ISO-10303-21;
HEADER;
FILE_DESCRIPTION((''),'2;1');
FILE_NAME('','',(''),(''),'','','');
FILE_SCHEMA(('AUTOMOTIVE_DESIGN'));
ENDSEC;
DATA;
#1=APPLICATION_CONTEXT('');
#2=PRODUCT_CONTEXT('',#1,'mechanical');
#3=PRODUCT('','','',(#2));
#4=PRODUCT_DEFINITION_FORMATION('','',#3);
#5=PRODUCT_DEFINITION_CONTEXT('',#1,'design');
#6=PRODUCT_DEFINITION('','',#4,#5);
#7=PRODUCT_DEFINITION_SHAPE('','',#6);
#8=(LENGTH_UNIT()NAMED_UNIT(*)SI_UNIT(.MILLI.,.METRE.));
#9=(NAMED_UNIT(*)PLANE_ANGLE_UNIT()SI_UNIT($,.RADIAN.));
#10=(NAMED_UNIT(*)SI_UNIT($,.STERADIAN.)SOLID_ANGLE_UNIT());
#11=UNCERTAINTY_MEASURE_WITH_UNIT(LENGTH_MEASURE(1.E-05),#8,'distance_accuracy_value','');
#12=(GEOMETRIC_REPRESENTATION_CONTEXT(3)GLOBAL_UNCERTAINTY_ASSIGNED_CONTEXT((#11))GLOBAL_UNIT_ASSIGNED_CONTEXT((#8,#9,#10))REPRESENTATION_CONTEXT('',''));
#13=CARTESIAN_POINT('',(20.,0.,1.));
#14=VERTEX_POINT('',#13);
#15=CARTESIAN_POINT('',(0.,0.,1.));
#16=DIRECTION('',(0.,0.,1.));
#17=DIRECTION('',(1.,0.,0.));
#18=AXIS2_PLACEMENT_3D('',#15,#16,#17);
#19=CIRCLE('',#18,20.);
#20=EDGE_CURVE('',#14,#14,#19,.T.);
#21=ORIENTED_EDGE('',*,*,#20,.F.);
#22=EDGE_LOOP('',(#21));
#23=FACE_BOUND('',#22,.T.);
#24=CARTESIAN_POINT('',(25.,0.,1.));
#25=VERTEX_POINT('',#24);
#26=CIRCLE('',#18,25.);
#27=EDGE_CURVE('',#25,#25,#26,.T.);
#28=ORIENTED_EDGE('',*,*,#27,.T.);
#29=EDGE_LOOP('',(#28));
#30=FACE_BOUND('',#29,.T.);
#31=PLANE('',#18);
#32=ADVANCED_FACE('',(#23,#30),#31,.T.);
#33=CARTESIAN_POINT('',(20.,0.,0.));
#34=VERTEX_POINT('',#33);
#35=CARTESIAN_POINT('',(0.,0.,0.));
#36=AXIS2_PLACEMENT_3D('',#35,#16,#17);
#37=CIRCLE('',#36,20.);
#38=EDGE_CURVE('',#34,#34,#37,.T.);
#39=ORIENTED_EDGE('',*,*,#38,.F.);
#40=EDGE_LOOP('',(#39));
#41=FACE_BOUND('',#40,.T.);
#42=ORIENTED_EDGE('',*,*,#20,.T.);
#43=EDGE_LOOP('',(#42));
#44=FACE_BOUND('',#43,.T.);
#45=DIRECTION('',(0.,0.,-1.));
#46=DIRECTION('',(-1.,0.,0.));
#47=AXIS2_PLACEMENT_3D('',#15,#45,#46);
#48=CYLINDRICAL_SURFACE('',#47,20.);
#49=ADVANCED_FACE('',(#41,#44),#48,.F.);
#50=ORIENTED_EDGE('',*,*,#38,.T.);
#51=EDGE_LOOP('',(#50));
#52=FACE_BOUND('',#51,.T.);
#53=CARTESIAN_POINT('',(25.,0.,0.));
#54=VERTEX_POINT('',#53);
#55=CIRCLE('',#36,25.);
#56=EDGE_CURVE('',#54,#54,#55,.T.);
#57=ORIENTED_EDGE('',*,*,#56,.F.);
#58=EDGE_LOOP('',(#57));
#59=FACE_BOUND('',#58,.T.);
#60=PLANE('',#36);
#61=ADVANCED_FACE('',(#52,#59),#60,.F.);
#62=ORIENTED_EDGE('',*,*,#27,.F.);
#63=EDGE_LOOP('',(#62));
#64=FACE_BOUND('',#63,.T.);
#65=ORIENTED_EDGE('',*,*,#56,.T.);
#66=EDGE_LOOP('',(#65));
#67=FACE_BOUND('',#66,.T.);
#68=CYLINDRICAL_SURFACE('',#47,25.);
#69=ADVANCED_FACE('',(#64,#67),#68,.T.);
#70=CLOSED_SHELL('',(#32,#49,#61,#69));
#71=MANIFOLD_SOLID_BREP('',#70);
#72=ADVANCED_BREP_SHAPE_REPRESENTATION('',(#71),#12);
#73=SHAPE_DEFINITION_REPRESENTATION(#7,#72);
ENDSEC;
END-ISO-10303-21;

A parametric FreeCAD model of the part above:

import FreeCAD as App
import Part
import Sketcher

V = App.Vector
Q = App.Units.Quantity

doc = App.newDocument("Part")
body = doc.addObject("PartDesign::Body", "Body")

sketch1 = body.newObject("Sketcher::SketchObject", "Sketch")
sketch1.AttachmentSupport = (doc.getObject("XY_Plane"), [""])
sketch1.MapMode = "FlatFace"
sketch1.addGeometry([
    Part.Circle(V(0, 0, 0), V(0, 0, 1), 25),
    Part.Circle(V(0, 0, 0), V(0, 0, 1), 20),
], False)
sketch1.addConstraint([
    Sketcher.Constraint("Coincident", 0, 3, -1, 1),
    Sketcher.Constraint("Coincident", 1, 3, -1, 1),
    Sketcher.Constraint("Diameter", 0, Q("50 mm")),
    Sketcher.Constraint("Diameter", 1, Q("40 mm")),
])
pad1 = body.newObject("PartDesign::Pad", "Pad")
pad1.Profile = sketch1
pad1.Length = 1

doc.recompute()
